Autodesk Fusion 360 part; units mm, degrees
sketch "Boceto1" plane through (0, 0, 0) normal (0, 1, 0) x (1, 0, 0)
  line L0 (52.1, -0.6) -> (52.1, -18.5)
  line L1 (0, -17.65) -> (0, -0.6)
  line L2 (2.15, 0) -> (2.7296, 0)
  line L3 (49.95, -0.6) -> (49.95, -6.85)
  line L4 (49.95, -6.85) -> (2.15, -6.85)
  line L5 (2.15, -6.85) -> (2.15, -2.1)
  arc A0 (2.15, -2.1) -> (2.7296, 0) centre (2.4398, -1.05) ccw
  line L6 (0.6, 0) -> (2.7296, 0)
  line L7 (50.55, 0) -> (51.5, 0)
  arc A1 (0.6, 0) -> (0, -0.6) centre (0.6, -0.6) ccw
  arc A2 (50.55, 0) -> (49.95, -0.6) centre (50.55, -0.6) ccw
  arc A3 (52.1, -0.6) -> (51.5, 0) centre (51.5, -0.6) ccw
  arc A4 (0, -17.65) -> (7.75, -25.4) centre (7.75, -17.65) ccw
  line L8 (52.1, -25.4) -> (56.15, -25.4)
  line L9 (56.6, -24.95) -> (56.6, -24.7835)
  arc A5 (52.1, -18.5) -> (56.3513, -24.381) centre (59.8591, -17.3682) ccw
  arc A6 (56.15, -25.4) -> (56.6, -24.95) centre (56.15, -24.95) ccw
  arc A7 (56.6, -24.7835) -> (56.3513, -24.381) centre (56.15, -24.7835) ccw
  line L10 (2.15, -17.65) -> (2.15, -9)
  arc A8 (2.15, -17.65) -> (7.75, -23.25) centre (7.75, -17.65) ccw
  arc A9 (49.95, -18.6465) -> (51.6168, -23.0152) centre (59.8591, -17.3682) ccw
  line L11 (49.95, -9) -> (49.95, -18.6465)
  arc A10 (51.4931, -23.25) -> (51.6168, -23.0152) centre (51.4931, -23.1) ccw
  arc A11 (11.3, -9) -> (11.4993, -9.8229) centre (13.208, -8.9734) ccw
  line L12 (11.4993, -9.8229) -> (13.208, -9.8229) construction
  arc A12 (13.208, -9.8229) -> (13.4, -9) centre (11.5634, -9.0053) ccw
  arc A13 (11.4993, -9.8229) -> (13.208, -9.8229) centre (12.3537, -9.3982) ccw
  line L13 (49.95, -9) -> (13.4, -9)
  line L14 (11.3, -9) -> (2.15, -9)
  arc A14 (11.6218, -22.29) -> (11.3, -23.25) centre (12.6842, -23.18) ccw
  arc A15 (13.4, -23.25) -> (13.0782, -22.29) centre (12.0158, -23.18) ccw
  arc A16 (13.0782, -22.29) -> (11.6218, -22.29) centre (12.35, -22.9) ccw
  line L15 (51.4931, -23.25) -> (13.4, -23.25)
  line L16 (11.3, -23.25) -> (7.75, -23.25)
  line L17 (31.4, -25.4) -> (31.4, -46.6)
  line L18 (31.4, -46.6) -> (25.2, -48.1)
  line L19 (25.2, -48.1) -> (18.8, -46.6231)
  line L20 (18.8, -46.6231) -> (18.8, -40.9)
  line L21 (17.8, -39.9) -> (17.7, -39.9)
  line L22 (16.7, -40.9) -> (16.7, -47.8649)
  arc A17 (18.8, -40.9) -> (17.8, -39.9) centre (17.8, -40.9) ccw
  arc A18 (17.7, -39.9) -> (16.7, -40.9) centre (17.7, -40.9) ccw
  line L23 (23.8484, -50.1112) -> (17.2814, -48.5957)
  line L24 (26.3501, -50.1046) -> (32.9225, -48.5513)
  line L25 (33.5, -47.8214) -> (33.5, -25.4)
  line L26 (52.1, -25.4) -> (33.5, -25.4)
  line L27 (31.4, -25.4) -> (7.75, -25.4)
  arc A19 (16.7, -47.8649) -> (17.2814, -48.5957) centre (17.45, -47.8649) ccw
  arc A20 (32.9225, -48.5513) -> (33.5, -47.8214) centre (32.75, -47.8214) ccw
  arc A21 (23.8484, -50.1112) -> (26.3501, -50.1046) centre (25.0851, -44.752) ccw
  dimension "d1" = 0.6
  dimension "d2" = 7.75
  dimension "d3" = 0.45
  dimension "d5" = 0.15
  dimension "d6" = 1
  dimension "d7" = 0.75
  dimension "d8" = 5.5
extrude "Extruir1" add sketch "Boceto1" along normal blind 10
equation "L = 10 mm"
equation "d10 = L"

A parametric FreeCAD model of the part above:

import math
import FreeCAD as App
import Part
import Sketcher
Q = App.Units.Quantity

doc = App.newDocument("Part")
body = doc.addObject("PartDesign::Body", "Body")

# Sketch on XZ plane
sketch1 = body.newObject("Sketcher::SketchObject", "Sketch")
sketch1.AttachmentSupport = (doc.getObject("XZ_Plane"), [""])
sketch1.MapMode = "FlatFace"
sketch1.addGeometry([
    Part.LineSegment(App.Vector(52.1, 18.5, 0), App.Vector(52.1, 0.6, 0)),  # 0
    Part.ArcOfCircle(Part.Circle(App.Vector(51.5, 0.6, 0), App.Vector(0, 0, 1), 0.6), math.radians(-90), math.radians(0)),  # 1
    Part.LineSegment(App.Vector(51.5, 0, 0), App.Vector(50.55, 0, 0)),  # 2
    Part.ArcOfCircle(Part.Circle(App.Vector(50.55, 0.6, 0), App.Vector(0, 0, 1), 0.6), math.radians(180), math.radians(270)),  # 3
    Part.LineSegment(App.Vector(49.95, 0.6, 0), App.Vector(49.95, 6.85, 0)),  # 4
    Part.LineSegment(App.Vector(49.95, 6.85, 0), App.Vector(2.15, 6.85, 0)),  # 5
    Part.LineSegment(App.Vector(2.15, 6.85, 0), App.Vector(2.15, 2.1, 0)),  # 6
    Part.ArcOfCircle(Part.Circle(App.Vector(2.44, 1.05, 0), App.Vector(0, 0, 1), 1.09), math.radians(-75), math.radians(105)),  # 7
    Part.LineSegment(App.Vector(2.73, 0, 0), App.Vector(0.6, 0, 0)),  # 8
    Part.ArcOfCircle(Part.Circle(App.Vector(0.6, 0.6, 0), App.Vector(0, 0, 1), 0.6), math.radians(180), math.radians(270)),  # 9
    Part.LineSegment(App.Vector(0, 0.6, 0), App.Vector(0, 17.65, 0)),  # 10
    Part.ArcOfCircle(Part.Circle(App.Vector(7.75, 17.65, 0), App.Vector(0, 0, 1), 7.75), math.radians(90), math.radians(180)),  # 11
    Part.LineSegment(App.Vector(7.75, 25.4, 0), App.Vector(31.4, 25.4, 0)),  # 12
    Part.LineSegment(App.Vector(31.4, 25.4, 0), App.Vector(31.4, 46.6, 0)),  # 13
    Part.LineSegment(App.Vector(31.4, 46.6, 0), App.Vector(25.2, 48.1, 0)),  # 14
    Part.LineSegment(App.Vector(25.2, 48.1, 0), App.Vector(18.8, 46.62, 0)),  # 15
    Part.LineSegment(App.Vector(18.8, 46.62, 0), App.Vector(18.8, 40.9, 0)),  # 16
    Part.ArcOfCircle(Part.Circle(App.Vector(17.8, 40.9, 0), App.Vector(0, 0, 1), 1), math.radians(-90), math.radians(0)),  # 17
    Part.LineSegment(App.Vector(17.8, 39.9, 0), App.Vector(17.7, 39.9, 0)),  # 18
    Part.ArcOfCircle(Part.Circle(App.Vector(17.7, 40.9, 0), App.Vector(0, 0, 1), 1), math.radians(180), math.radians(270)),  # 19
    Part.LineSegment(App.Vector(16.7, 40.9, 0), App.Vector(16.7, 47.86, 0)),  # 20
    Part.ArcOfCircle(Part.Circle(App.Vector(17.45, 47.86, 0), App.Vector(0, 0, 1), 0.75), math.radians(103), math.radians(180)),  # 21
    Part.LineSegment(App.Vector(17.28, 48.6, 0), App.Vector(23.85, 50.11, 0)),  # 22
    Part.ArcOfCircle(Part.Circle(App.Vector(25.09, 44.75, 0), App.Vector(0, 0, 1), 5.5), math.radians(77), math.radians(103)),  # 23
    Part.LineSegment(App.Vector(26.35, 50.1, 0), App.Vector(32.92, 48.55, 0)),  # 24
    Part.ArcOfCircle(Part.Circle(App.Vector(32.75, 47.82, 0), App.Vector(0, 0, 1), 0.75), math.radians(0), math.radians(77)),  # 25
    Part.LineSegment(App.Vector(33.5, 47.82, 0), App.Vector(33.5, 25.4, 0)),  # 26
    Part.LineSegment(App.Vector(33.5, 25.4, 0), App.Vector(56.15, 25.4, 0)),  # 27
    Part.ArcOfCircle(Part.Circle(App.Vector(56.15, 24.95, 0), App.Vector(0, 0, 1), 0.45), math.radians(0), math.radians(90)),  # 28
    Part.LineSegment(App.Vector(56.6, 24.95, 0), App.Vector(56.6, 24.78, 0)),  # 29
    Part.ArcOfCircle(Part.Circle(App.Vector(56.15, 24.78, 0), App.Vector(0, 0, 1), 0.45), math.radians(-63), math.radians(0)),  # 30
    Part.ArcOfCircle(Part.Circle(App.Vector(59.86, 17.37, 0), App.Vector(0, 0, 1), 7.84), math.radians(117), math.radians(172)),  # 31
    Part.ArcOfCircle(Part.Circle(App.Vector(7.75, 17.65, 0), App.Vector(0, 0, 1), 5.6), math.radians(90), math.radians(180)),  # 32
    Part.LineSegment(App.Vector(2.15, 17.65, 0), App.Vector(2.15, 9, 0)),  # 33
    Part.LineSegment(App.Vector(2.15, 9, 0), App.Vector(11.3, 9, 0)),  # 34
    Part.ArcOfCircle(Part.Circle(App.Vector(13.21, 8.97, 0), App.Vector(0, 0, 1), 1.91), math.radians(154), math.radians(179)),  # 35
    Part.ArcOfCircle(Part.Circle(App.Vector(12.35, 9.4, 0), App.Vector(0, 0, 1), 0.95), math.radians(26), math.radians(154)),  # 36
    Part.ArcOfCircle(Part.Circle(App.Vector(11.56, 9.01, 0), App.Vector(0, 0, 1), 1.84), math.radians(0), math.radians(26)),  # 37
    Part.LineSegment(App.Vector(13.4, 9, 0), App.Vector(49.95, 9, 0)),  # 38
    Part.LineSegment(App.Vector(49.95, 9, 0), App.Vector(49.95, 18.65, 0)),  # 39
    Part.ArcOfCircle(Part.Circle(App.Vector(59.86, 17.37, 0), App.Vector(0, 0, 1), 9.99), math.radians(146), math.radians(173)),  # 40
    Part.ArcOfCircle(Part.Circle(App.Vector(51.49, 23.1, 0), App.Vector(0, 0, 1), 0.15), math.radians(-34), math.radians(90)),  # 41
    Part.LineSegment(App.Vector(51.49, 23.25, 0), App.Vector(13.4, 23.25, 0)),  # 42
    Part.ArcOfCircle(Part.Circle(App.Vector(12.02, 23.18, 0), App.Vector(0, 0, 1), 1.39), math.radians(-40), math.radians(3)),  # 43
    Part.ArcOfCircle(Part.Circle(App.Vector(12.35, 22.9, 0), App.Vector(0, 0, 1), 0.95), math.radians(-140), math.radians(-40)),  # 44
    Part.ArcOfCircle(Part.Circle(App.Vector(12.68, 23.18, 0), App.Vector(0, 0, 1), 1.39), math.radians(177), math.radians(220)),  # 45
    Part.LineSegment(App.Vector(11.3, 23.25, 0), App.Vector(7.75, 23.25, 0)),  # 46
], False)
sketch1.addConstraint([
    Sketcher.Constraint("Tangent", 0, 2, 1, 2),
    Sketcher.Constraint("Tangent", 1, 1, 2, 1),
    Sketcher.Constraint("Tangent", 2, 2, 3, 2),
    Sketcher.Constraint("Tangent", 3, 1, 4, 1),
    Sketcher.Constraint("Coincident", 4, 2, 5, 1),
    Sketcher.Constraint("Coincident", 5, 2, 6, 1),
    Sketcher.Constraint("Coincident", 6, 2, 7, 2),
    Sketcher.Constraint("Coincident", 7, 1, 8, 1),
    Sketcher.Constraint("Tangent", 8, 2, 9, 2),
    Sketcher.Constraint("Tangent", 9, 1, 10, 1),
    Sketcher.Constraint("Tangent", 10, 2, 11, 2),
    Sketcher.Constraint("Tangent", 11, 1, 12, 1),
    Sketcher.Constraint("Coincident", 12, 2, 13, 1),
    Sketcher.Constraint("Coincident", 13, 2, 14, 1),
    Sketcher.Constraint("Coincident", 14, 2, 15, 1),
    Sketcher.Constraint("Coincident", 15, 2, 16, 1),
    Sketcher.Constraint("Tangent", 16, 2, 17, 2),
    Sketcher.Constraint("Tangent", 17, 1, 18, 1),
    Sketcher.Constraint("Tangent", 18, 2, 19, 2),
    Sketcher.Constraint("Tangent", 19, 1, 20, 1),
    Sketcher.Constraint("Tangent", 20, 2, 21, 2),
    Sketcher.Constraint("Tangent", 21, 1, 22, 1),
    Sketcher.Constraint("Tangent", 22, 2, 23, 2),
    Sketcher.Constraint("Tangent", 23, 1, 24, 1),
    Sketcher.Constraint("Tangent", 24, 2, 25, 2),
    Sketcher.Constraint("Tangent", 25, 1, 26, 1),
    Sketcher.Constraint("Coincident", 26, 2, 27, 1),
    Sketcher.Constraint("Tangent", 27, 2, 28, 2),
    Sketcher.Constraint("Tangent", 28, 1, 29, 1),
    Sketcher.Constraint("Tangent", 29, 2, 30, 2),
    Sketcher.Constraint("Tangent", 30, 1, 31, 1),
    Sketcher.Constraint("Coincident", 31, 2, 0, 1),
    Sketcher.Constraint("Tangent", 32, 2, 33, 1),
    Sketcher.Constraint("Coincident", 33, 2, 34, 1),
    Sketcher.Constraint("Coincident", 34, 2, 35, 2),
    Sketcher.Constraint("Tangent", 35, 1, 36, 2),
    Sketcher.Constraint("Tangent", 36, 1, 37, 2),
    Sketcher.Constraint("Coincident", 37, 1, 38, 1),
    Sketcher.Constraint("Coincident", 38, 2, 39, 1),
    Sketcher.Constraint("Coincident", 39, 2, 40, 2),
    Sketcher.Constraint("Tangent", 40, 1, 41, 1),
    Sketcher.Constraint("Tangent", 41, 2, 42, 1),
    Sketcher.Constraint("Coincident", 42, 2, 43, 2),
    Sketcher.Constraint("Tangent", 43, 1, 44, 2),
    Sketcher.Constraint("Tangent", 44, 1, 45, 2),
    Sketcher.Constraint("Coincident", 45, 1, 46, 1),
    Sketcher.Constraint("Tangent", 46, 2, 32, 1),
    Sketcher.Constraint("Vertical", 0),
    Sketcher.Constraint("Horizontal", 2),
    Sketcher.Constraint("Vertical", 4),
    Sketcher.Constraint("Horizontal", 5),
    Sketcher.Constraint("Vertical", 6),
    Sketcher.Constraint("Horizontal", 8),
    Sketcher.Constraint("Vertical", 10),
    Sketcher.Constraint("Horizontal", 12),
    Sketcher.Constraint("Vertical", 13),
    Sketcher.Constraint("Vertical", 16),
    Sketcher.Constraint("Horizontal", 18),
    Sketcher.Constraint("Vertical", 20),
    Sketcher.Constraint("Vertical", 26),
    Sketcher.Constraint("Horizontal", 27),
    Sketcher.Constraint("Vertical", 29),
    Sketcher.Constraint("Vertical", 33),
    Sketcher.Constraint("Horizontal", 34),
    Sketcher.Constraint("Horizontal", 38),
    Sketcher.Constraint("Vertical", 39),
    Sketcher.Constraint("Horizontal", 42),
    Sketcher.Constraint("Horizontal", 46),
    Sketcher.Constraint("Coincident", 32, 3, 11, 3),
    Sketcher.Constraint("Coincident", 40, 3, 31, 3),
    Sketcher.Constraint("Equal", 1, 3),
    Sketcher.Constraint("Equal", 3, 9),
    Sketcher.Constraint("Equal", 17, 19),
    Sketcher.Constraint("Equal", 21, 25),
    Sketcher.Constraint("Equal", 28, 30),
    Sketcher.Constraint("Equal", 43, 45),
    Sketcher.Constraint("PointOnObject", 1, 1, -1),
    Sketcher.Constraint("PointOnObject", 7, 1, -1),
    Sketcher.Constraint("PointOnObject", 9, 1, -2),
    Sketcher.Constraint("Parallel", 15, 22),
    Sketcher.Constraint("Horizontal", 43, 3, 45, 3),
    Sketcher.Constraint("Horizontal", 12, 2, 26, 2),
    Sketcher.Constraint("Horizontal", 35, 1, 36, 1),
    Sketcher.Constraint("Horizontal", 34, 2, 37, 1),
    Sketcher.Constraint("Horizontal", 42, 2, 45, 1),
    Sketcher.Constraint("Vertical", 6, 2, 32, 2),
    Sketcher.Constraint("Vertical", 35, 3, 36, 1),
    Sketcher.Constraint("Vertical", 4, 2, 38, 2),
    Sketcher.Constraint("Vertical", 37, 1, 42, 2),
    Sketcher.Constraint("Vertical", 34, 2, 45, 1),
    Sketcher.Constraint("Radius", 17, Q("1 mm")),
    Sketcher.Constraint("Radius", 1, Q("0.6 mm")),
    Sketcher.Constraint("Radius", 23, Q("5.5 mm")),
    Sketcher.Constraint("Radius", 11, Q("7.75 mm")),
    Sketcher.Constraint("Radius", 21, Q("0.75 mm")),
    Sketcher.Constraint("Radius", 28, Q("0.45 mm")),
    Sketcher.Constraint("Radius", 41, Q("0.15 mm")),
    Sketcher.Constraint("Radius", 32, Q("5.6 mm")),
    Sketcher.Constraint("Radius", 44, Q("0.95 mm")),
    Sketcher.Constraint("DistanceX", 5, 2, 5, 1, Q("47.8 mm")),
    Sketcher.Constraint("DistanceX", 18, 2, 18, 1, Q("0.1 mm")),
    Sketcher.Constraint("DistanceY", 0, 2, 0, 1, Q("17.9 mm")),
    Sketcher.Constraint("DistanceY", 13, 1, 13, 2, Q("21.2 mm")),
    Sketcher.Constraint("DistanceY", -1, 1, 33, 2, Q("9 mm")),
    Sketcher.Constraint("Angle", 14, Q("166.3995 deg")),
    Sketcher.Constraint("Radius", 43, Q("1.386 mm")),
    Sketcher.Constraint("DistanceX", 2, 2, 2, 1, Q("0.95 mm")),
    Sketcher.Constraint("DistanceX", 12, 1, 12, 2, Q("23.65 mm")),
    Sketcher.Constraint("DistanceX", 27, 1, 27, 2, Q("22.65 mm")),
    Sketcher.Constraint("DistanceX", 34, 1, 34, 2, Q("9.15 mm")),
    Sketcher.Constraint("DistanceX", 38, 1, 38, 2, Q("36.55 mm")),
    Sketcher.Constraint("DistanceY", 4, 1, 4, 2, Q("6.25 mm")),
    Sketcher.Constraint("DistanceY", 6, 2, 6, 1, Q("4.75 mm")),
    Sketcher.Constraint("DistanceY", 10, 1, 10, 2, Q("17.05 mm")),
    Sketcher.Constraint("DistanceX", -1, 1, 17, 3, Q("17.8 mm")),
    Sketcher.Constraint("DistanceY", -1, 1, 17, 3, Q("40.9 mm")),
    Sketcher.Constraint("DistanceY", -1, 1, 44, 3, Q("22.9 mm")),
    Sketcher.Constraint("DistanceX", -1, 1, 14, 2, Q("25.2 mm")),
    Sketcher.Constraint("DistanceX", -1, 1, 25, 1, Q("33.5 mm")),
    Sketcher.Constraint("Radius", 7, Q("1.0893 mm")),
    Sketcher.Constraint("Radius", 31, Q("7.8412 mm")),
    Sketcher.Constraint("Radius", 35, Q("1.9082 mm")),
    Sketcher.Constraint("Radius", 37, Q("1.8366 mm")),
    Sketcher.Constraint("Radius", 40, Q("9.9912 mm")),
    Sketcher.Constraint("DistanceX", 42, 2, 42, 1, Q("38.093 mm")),
    Sketcher.Constraint("DistanceY", 16, 2, 16, 1, Q("5.723 mm")),
    Sketcher.Constraint("DistanceY", 20, 1, 20, 2, Q("6.965 mm")),
    Sketcher.Constraint("DistanceY", -1, 1, 7, 3, Q("1.05 mm")),
    Sketcher.Constraint("DistanceX", -1, 1, 23, 1, Q("26.35 mm")),
    Sketcher.Constraint("DistanceY", 26, 2, 26, 1, Q("22.4214 mm")),
    Sketcher.Constraint("DistanceX", -1, 1, 35, 3, Q("13.208 mm")),
])
pad1 = body.newObject("PartDesign::Pad", "Pad")
pad1.Profile = sketch1
pad1.Length = 10
pad1.Reversed = True

doc.recompute()
